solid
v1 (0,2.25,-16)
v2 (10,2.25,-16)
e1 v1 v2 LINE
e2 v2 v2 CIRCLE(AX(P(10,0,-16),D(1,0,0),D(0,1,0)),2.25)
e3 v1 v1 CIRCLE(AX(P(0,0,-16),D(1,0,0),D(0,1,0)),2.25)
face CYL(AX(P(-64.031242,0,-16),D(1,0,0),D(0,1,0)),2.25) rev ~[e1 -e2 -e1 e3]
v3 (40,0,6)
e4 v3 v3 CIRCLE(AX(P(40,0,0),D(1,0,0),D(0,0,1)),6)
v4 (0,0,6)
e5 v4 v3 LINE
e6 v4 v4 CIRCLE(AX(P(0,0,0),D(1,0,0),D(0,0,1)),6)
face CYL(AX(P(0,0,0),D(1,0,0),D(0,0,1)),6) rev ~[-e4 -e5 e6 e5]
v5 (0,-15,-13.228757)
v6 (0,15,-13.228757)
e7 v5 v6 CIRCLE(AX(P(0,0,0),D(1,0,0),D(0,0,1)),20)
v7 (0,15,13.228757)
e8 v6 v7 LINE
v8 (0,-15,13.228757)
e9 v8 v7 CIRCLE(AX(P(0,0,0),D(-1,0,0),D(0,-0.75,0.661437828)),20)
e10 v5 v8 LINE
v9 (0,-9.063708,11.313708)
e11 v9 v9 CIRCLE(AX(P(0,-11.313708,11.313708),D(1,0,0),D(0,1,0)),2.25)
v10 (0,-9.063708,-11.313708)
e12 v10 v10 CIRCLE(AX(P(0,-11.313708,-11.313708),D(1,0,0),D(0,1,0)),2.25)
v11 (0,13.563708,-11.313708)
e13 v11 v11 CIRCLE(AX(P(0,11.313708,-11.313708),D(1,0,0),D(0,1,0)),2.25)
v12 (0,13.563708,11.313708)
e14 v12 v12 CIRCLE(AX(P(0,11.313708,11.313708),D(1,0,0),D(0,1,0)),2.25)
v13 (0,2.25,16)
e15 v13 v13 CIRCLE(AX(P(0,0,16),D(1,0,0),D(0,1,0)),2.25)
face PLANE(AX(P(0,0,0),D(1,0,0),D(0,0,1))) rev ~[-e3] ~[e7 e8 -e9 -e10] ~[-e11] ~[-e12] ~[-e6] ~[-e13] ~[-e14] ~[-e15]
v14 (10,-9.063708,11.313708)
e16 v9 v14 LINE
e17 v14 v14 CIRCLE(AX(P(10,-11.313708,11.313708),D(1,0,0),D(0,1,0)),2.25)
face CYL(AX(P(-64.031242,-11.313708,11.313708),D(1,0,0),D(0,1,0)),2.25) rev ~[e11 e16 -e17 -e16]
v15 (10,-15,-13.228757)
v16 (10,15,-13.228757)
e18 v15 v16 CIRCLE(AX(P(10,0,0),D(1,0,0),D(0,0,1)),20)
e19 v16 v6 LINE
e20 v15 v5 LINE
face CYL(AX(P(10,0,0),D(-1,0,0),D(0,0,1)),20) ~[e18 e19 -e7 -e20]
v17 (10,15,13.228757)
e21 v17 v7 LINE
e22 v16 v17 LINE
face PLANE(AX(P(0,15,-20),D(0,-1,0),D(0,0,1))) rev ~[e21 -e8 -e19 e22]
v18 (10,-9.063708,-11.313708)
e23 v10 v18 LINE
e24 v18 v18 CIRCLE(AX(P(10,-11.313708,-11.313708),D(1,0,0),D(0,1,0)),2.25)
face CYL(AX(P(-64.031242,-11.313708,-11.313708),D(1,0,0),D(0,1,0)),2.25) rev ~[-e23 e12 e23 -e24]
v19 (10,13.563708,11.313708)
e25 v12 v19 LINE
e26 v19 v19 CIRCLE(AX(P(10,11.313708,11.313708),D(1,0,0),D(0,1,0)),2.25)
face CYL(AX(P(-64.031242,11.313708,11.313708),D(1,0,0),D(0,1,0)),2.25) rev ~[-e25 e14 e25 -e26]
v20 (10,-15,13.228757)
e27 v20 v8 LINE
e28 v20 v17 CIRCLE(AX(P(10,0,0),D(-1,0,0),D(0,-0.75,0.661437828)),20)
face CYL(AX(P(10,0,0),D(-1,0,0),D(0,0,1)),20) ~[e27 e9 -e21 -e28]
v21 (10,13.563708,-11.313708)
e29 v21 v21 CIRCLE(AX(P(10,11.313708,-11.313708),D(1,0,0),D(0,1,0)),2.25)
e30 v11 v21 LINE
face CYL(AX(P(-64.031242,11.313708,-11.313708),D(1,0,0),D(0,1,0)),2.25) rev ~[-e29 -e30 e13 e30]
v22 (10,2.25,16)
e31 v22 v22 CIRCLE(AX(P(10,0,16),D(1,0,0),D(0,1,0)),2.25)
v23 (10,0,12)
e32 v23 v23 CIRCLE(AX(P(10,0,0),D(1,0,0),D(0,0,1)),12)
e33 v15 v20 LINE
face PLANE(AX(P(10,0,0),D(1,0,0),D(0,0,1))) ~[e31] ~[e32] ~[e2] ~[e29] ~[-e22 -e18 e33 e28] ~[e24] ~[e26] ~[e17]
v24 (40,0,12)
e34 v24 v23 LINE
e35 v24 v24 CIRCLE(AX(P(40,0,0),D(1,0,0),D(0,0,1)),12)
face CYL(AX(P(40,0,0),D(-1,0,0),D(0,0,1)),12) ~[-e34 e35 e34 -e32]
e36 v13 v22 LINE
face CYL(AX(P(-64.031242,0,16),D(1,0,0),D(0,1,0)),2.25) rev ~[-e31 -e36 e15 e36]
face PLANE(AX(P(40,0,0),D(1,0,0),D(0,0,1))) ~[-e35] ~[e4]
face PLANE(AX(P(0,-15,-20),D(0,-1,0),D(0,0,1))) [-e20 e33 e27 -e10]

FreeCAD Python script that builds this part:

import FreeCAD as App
import Part
import Sketcher

V = App.Vector
Q = App.Units.Quantity

doc = App.newDocument("Part")
body = doc.addObject("PartDesign::Body", "Body")

sketch1 = body.newObject("Sketcher::SketchObject", "Sketch")
sketch1.AttachmentSupport = (doc.getObject("XZ_Plane"), [""])
sketch1.MapMode = "FlatFace"
sketch1.addGeometry(Part.LineSegment(V(0, 20, 0), V(0, 6, 0)), False)
sketch1.addGeometry(Part.LineSegment(V(0, 6, 0), V(40, 6, 0)), False)
sketch1.addGeometry(Part.LineSegment(V(40, 6, 0), V(40, 12, 0)), False)
sketch1.addGeometry(Part.LineSegment(V(40, 12, 0), V(10, 12, 0)), False)
sketch1.addGeometry(Part.LineSegment(V(10, 12, 0), V(10, 20, 0)), False)
sketch1.addGeometry(Part.LineSegment(V(10, 20, 0), V(0, 20, 0)), False)
sketch1.addConstraint(Sketcher.Constraint("Coincident", 0, 2, 1, 1))
sketch1.addConstraint(Sketcher.Constraint("Coincident", 1, 2, 2, 1))
sketch1.addConstraint(Sketcher.Constraint("Coincident", 2, 2, 3, 1))
sketch1.addConstraint(Sketcher.Constraint("Coincident", 3, 2, 4, 1))
sketch1.addConstraint(Sketcher.Constraint("Coincident", 4, 2, 5, 1))
sketch1.addConstraint(Sketcher.Constraint("Coincident", 5, 2, 0, 1))
sketch1.addConstraint(Sketcher.Constraint("Vertical", 0))
sketch1.addConstraint(Sketcher.Constraint("Horizontal", 1))
sketch1.addConstraint(Sketcher.Constraint("Vertical", 2))
sketch1.addConstraint(Sketcher.Constraint("Horizontal", 3))
sketch1.addConstraint(Sketcher.Constraint("Vertical", 4))
sketch1.addConstraint(Sketcher.Constraint("Horizontal", 5))
sketch1.addConstraint(Sketcher.Constraint("PointOnObject", 0, 2, -2))
sketch1.addConstraint(Sketcher.Constraint("DistanceX", 1, 1, 1, 2, Q("40 mm")))
sketch1.addConstraint(Sketcher.Constraint("DistanceX", 3, 2, 3, 1, Q("30 mm")))
sketch1.addConstraint(Sketcher.Constraint("DistanceY", 0, 2, 0, 1, Q("14 mm")))
sketch1.addConstraint(Sketcher.Constraint("DistanceY", 2, 1, 2, 2, Q("6 mm")))
sketch1.addConstraint(Sketcher.Constraint("DistanceY", -1, 1, 0, 2, Q("6 mm")))
revolution = body.newObject("PartDesign::Revolution", "Revolution")
revolution.Profile = sketch1
revolution.ReferenceAxis = (sketch1, ["H_Axis"])
revolution.Angle = 360

sketch2 = body.newObject("Sketcher::SketchObject", "Sketch001")
sketch2.AttachmentSupport = (doc.getObject("YZ_Plane"), [""])
sketch2.MapMode = "FlatFace"
sketch2.addGeometry(Part.LineSegment(V(25, 20, 0), V(25, -20, 0)), False)
sketch2.addGeometry(Part.LineSegment(V(25, -20, 0), V(15, -20, 0)), False)
sketch2.addGeometry(Part.LineSegment(V(15, -20, 0), V(15, 20, 0)), False)
sketch2.addGeometry(Part.LineSegment(V(15, 20, 0), V(25, 20, 0)), False)
sketch2.addGeometry(Part.LineSegment(V(-15, 20, 0), V(-15, -20, 0)), False)
sketch2.addGeometry(Part.LineSegment(V(-15, -20, 0), V(-25, -20, 0)), False)
sketch2.addGeometry(Part.LineSegment(V(-25, -20, 0), V(-25, 20, 0)), False)
sketch2.addGeometry(Part.LineSegment(V(-25, 20, 0), V(-15, 20, 0)), False)
sketch2.addConstraint(Sketcher.Constraint("Coincident", 0, 2, 1, 1))
sketch2.addConstraint(Sketcher.Constraint("Coincident", 1, 2, 2, 1))
sketch2.addConstraint(Sketcher.Constraint("Coincident", 2, 2, 3, 1))
sketch2.addConstraint(Sketcher.Constraint("Coincident", 3, 2, 0, 1))
sketch2.addConstraint(Sketcher.Constraint("Coincident", 4, 2, 5, 1))
sketch2.addConstraint(Sketcher.Constraint("Coincident", 5, 2, 6, 1))
sketch2.addConstraint(Sketcher.Constraint("Coincident", 6, 2, 7, 1))
sketch2.addConstraint(Sketcher.Constraint("Coincident", 7, 2, 4, 1))
sketch2.addConstraint(Sketcher.Constraint("Vertical", 0))
sketch2.addConstraint(Sketcher.Constraint("Horizontal", 1))
sketch2.addConstraint(Sketcher.Constraint("Vertical", 2))
sketch2.addConstraint(Sketcher.Constraint("Horizontal", 3))
sketch2.addConstraint(Sketcher.Constraint("Vertical", 4))
sketch2.addConstraint(Sketcher.Constraint("Horizontal", 5))
sketch2.addConstraint(Sketcher.Constraint("Vertical", 6))
sketch2.addConstraint(Sketcher.Constraint("Horizontal", 7))
sketch2.addConstraint(Sketcher.Constraint("Symmetric", 2, 2, 4, 2, -1, 1))
sketch2.addConstraint(Sketcher.Constraint("Symmetric", 0, 2, 6, 2, -1, 1))
sketch2.addConstraint(Sketcher.Constraint("Horizontal", 1, 2, 4, 2))
sketch2.addConstraint(Sketcher.Constraint("DistanceX", 1, 2, 1, 1, Q("10 mm")))
sketch2.addConstraint(Sketcher.Constraint("DistanceY", 0, 2, 0, 1, Q("40 mm")))
sketch2.addConstraint(Sketcher.Constraint("DistanceX", -1, 1, 0, 2, Q("25 mm")))
pocket1 = body.newObject("PartDesign::Pocket", "Pocket")
pocket1.Profile = sketch2
pocket1.Type = "ThroughAll"
pocket1.Reversed = True

sketch3 = body.newObject("Sketcher::SketchObject", "Sketch002")
sketch3.AttachmentSupport = (doc.getObject("YZ_Plane"), [""])
sketch3.MapMode = "FlatFace"
sketch3.addGeometry(Part.Circle(V(11.313708, 11.313708, 0), V(0, 0, 1), 2.25), False)
sketch3.addGeometry(Part.Circle(V(-11.313708, 11.313708, 0), V(0, 0, 1), 2.25), False)
sketch3.addGeometry(Part.Circle(V(-11.313708, -11.313708, 0), V(0, 0, 1), 2.25), False)
sketch3.addGeometry(Part.Circle(V(11.313708, -11.313708, 0), V(0, 0, 1), 2.25), False)
sketch3.addGeometry(Part.Circle(V(0, 16, 0), V(0, 0, 1), 2.25), False)
sketch3.addGeometry(Part.Circle(V(0, -16, 0), V(0, 0, 1), 2.25), False)
sketch3.addConstraint(Sketcher.Constraint("Equal", 0, 1))
sketch3.addConstraint(Sketcher.Constraint("Equal", 1, 2))
sketch3.addConstraint(Sketcher.Constraint("Equal", 2, 3))
sketch3.addConstraint(Sketcher.Constraint("Equal", 3, 4))
sketch3.addConstraint(Sketcher.Constraint("Equal", 4, 5))
sketch3.addConstraint(Sketcher.Constraint("Symmetric", 0, 3, 2, 3, -1, 1))
sketch3.addConstraint(Sketcher.Constraint("Symmetric", 1, 3, 3, 3, -1, 1))
sketch3.addConstraint(Sketcher.Constraint("Symmetric", 4, 3, 5, 3, -1, 1))
sketch3.addConstraint(Sketcher.Constraint("Symmetric", 0, 3, 1, 3, -2))
sketch3.addConstraint(Sketcher.Constraint("PointOnObject", 4, 3, -2))
sketch3.addConstraint(Sketcher.Constraint("Diameter", 0, Q("4.5 mm")))
sketch3.addConstraint(Sketcher.Constraint("DistanceY", -1, 1, 4, 3, Q("16 mm")))
sketch3.addConstraint(Sketcher.Constraint("DistanceX", -1, 1, 0, 3, Q("11.313708 mm")))
sketch3.addConstraint(Sketcher.Constraint("DistanceY", -1, 1, 0, 3, Q("11.313708 mm")))
doc.recompute()
hole = body.newObject("PartDesign::Hole", "Hole")
hole.Profile = sketch3
hole.ThreadType = "None"
hole.Diameter = 4.5
hole.DepthType = "ThroughAll"
hole.Reversed = True

doc.recompute()
